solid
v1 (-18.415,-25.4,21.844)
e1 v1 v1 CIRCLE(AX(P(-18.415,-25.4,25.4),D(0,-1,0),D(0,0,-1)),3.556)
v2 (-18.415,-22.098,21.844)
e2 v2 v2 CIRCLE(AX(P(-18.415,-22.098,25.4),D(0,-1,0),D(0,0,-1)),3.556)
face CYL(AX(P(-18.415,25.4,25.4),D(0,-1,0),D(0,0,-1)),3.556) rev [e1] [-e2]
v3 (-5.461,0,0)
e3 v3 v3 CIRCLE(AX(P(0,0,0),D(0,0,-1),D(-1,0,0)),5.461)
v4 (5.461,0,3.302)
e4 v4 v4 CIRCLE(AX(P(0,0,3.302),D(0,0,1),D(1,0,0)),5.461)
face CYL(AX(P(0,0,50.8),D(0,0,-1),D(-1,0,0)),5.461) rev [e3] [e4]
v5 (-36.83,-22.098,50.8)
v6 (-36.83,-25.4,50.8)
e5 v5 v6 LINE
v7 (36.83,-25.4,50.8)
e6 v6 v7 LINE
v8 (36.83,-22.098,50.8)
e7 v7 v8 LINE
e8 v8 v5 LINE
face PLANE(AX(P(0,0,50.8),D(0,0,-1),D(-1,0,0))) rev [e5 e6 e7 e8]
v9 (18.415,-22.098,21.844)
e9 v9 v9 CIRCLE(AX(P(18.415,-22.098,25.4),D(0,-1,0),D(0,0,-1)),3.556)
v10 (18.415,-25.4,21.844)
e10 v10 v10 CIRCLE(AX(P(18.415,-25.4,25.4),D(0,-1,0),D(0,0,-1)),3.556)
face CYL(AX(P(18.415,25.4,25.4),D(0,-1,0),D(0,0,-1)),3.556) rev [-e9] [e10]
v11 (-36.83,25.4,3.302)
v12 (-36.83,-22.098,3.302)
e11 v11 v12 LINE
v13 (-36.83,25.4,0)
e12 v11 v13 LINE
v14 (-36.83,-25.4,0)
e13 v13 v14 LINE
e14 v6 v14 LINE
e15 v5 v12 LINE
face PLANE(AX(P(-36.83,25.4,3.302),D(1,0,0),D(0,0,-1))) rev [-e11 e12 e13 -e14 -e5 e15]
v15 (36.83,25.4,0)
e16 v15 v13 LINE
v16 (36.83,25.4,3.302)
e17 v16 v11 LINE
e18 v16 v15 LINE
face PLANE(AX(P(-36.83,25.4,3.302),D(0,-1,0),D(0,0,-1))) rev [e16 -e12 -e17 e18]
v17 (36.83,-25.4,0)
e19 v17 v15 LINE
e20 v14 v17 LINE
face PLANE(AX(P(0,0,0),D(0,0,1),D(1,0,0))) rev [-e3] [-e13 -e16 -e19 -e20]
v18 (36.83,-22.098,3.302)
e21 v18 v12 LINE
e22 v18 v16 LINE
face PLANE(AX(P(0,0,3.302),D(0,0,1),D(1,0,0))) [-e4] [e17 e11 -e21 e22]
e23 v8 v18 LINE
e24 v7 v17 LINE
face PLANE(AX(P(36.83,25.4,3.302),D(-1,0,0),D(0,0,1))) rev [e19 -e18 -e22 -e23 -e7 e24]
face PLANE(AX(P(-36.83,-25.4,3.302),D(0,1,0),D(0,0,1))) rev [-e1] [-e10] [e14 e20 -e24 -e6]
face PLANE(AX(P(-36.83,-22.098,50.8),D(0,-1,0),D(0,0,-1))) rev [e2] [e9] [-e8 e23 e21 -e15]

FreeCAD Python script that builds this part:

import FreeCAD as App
import Part
import Sketcher
Q = App.Units.Quantity

doc = App.newDocument("Part")
body = doc.addObject("PartDesign::Body", "Body")

sketch1 = body.newObject("Sketcher::SketchObject", "Sketch")
sketch1.AttachmentSupport = (doc.getObject("XY_Plane"), [""])
sketch1.MapMode = "FlatFace"
sketch1.addGeometry(Part.LineSegment(App.Vector(-37, 25, 0), App.Vector(-37, -25, 0)), False)
sketch1.addGeometry(Part.LineSegment(App.Vector(-37, -25, 0), App.Vector(37, -25, 0)), False)
sketch1.addGeometry(Part.LineSegment(App.Vector(37, -25, 0), App.Vector(37, 25, 0)), False)
sketch1.addGeometry(Part.LineSegment(App.Vector(37, 25, 0), App.Vector(-37, 25, 0)), False)
sketch1.addConstraint(Sketcher.Constraint("Coincident", 0, 2, 1, 1))
sketch1.addConstraint(Sketcher.Constraint("Coincident", 1, 2, 2, 1))
sketch1.addConstraint(Sketcher.Constraint("Coincident", 2, 2, 3, 1))
sketch1.addConstraint(Sketcher.Constraint("Coincident", 3, 2, 0, 1))
sketch1.addConstraint(Sketcher.Constraint("Vertical", 0))
sketch1.addConstraint(Sketcher.Constraint("Horizontal", 1))
sketch1.addConstraint(Sketcher.Constraint("Vertical", 2))
sketch1.addConstraint(Sketcher.Constraint("Horizontal", 3))
sketch1.addConstraint(Sketcher.Constraint("Symmetric", 0, 2, 2, 2, -1, 1))
sketch1.addConstraint(Sketcher.Constraint("DistanceY", 0, 2, 0, 1, Q("2 in")))
sketch1.addConstraint(Sketcher.Constraint("DistanceX", 1, 1, 1, 2, Q("2.9 in")))
pad1 = body.newObject("PartDesign::Pad", "Pad")
pad1.Profile = sketch1
pad1.Length = Q("0.13 in")

sketch2 = body.newObject("Sketcher::SketchObject", "Sketch001")
sketch2.AttachmentSupport = (doc.getObject("XY_Plane"), [""])
sketch2.MapMode = "FlatFace"
sketch2.AttachmentOffset = App.Placement(App.Vector(0, 0, 0.13 * 25.4), App.Rotation())
sketch2.addGeometry(Part.LineSegment(App.Vector(-36.8, -22.1, 0), App.Vector(-36.8, -25.4, 0)), False)
sketch2.addGeometry(Part.LineSegment(App.Vector(-36.8, -25.4, 0), App.Vector(36.8, -25.4, 0)), False)
sketch2.addGeometry(Part.LineSegment(App.Vector(36.8, -25.4, 0), App.Vector(36.8, -22.1, 0)), False)
sketch2.addGeometry(Part.LineSegment(App.Vector(36.8, -22.1, 0), App.Vector(-36.8, -22.1, 0)), False)
sketch2.addConstraint(Sketcher.Constraint("Coincident", 0, 2, 1, 1))
sketch2.addConstraint(Sketcher.Constraint("Coincident", 1, 2, 2, 1))
sketch2.addConstraint(Sketcher.Constraint("Coincident", 2, 2, 3, 1))
sketch2.addConstraint(Sketcher.Constraint("Coincident", 3, 2, 0, 1))
sketch2.addConstraint(Sketcher.Constraint("Vertical", 0))
sketch2.addConstraint(Sketcher.Constraint("Horizontal", 1))
sketch2.addConstraint(Sketcher.Constraint("Vertical", 2))
sketch2.addConstraint(Sketcher.Constraint("Horizontal", 3))
sketch2.addConstraint(Sketcher.Constraint("DistanceX", 1, 1, 1, 2, Q("2.9 in")))
sketch2.addConstraint(Sketcher.Constraint("DistanceY", 0, 2, -1, 1, Q("1 in")))
sketch2.addConstraint(Sketcher.Constraint("DistanceY", 0, 2, 0, 1, Q("0.13 in")))
sketch2.addConstraint(Sketcher.Constraint("DistanceX", 0, 2, -1, 1, Q("1.45 in")))
pad2 = body.newObject("PartDesign::Pad", "Pad001")
pad2.Profile = sketch2
pad2.Length = Q("1.87 in")

sketch3 = body.newObject("Sketcher::SketchObject", "Sketch002")
sketch3.AttachmentSupport = (doc.getObject("XY_Plane"), [""])
sketch3.MapMode = "FlatFace"
sketch3.addGeometry(Part.Circle(App.Vector(0, 0, 0), App.Vector(0, 0, 1), 5), False)
sketch3.addConstraint(Sketcher.Constraint("Coincident", 0, 3, -1, 1))
sketch3.addConstraint(Sketcher.Constraint("Diameter", 0, Q("0.43 in")))
pocket1 = body.newObject("PartDesign::Pocket", "Pocket")
pocket1.Profile = sketch3
pocket1.Type = "ThroughAll"
pocket1.Reversed = True

sketch4 = body.newObject("Sketcher::SketchObject", "Sketch003")
sketch4.AttachmentSupport = (doc.getObject("XZ_Plane"), [""])
sketch4.MapMode = "FlatFace"
sketch4.AttachmentOffset = App.Placement(App.Vector(0, 0, 1 * 25.4), App.Rotation())
sketch4.addGeometry(Part.Circle(App.Vector(-18.4, 25.4, 0), App.Vector(0, 0, 1), 3.6), False)
sketch4.addGeometry(Part.Circle(App.Vector(18.4, 25.4, 0), App.Vector(0, 0, 1), 3.6), False)
sketch4.addConstraint(Sketcher.Constraint("Equal", 0, 1))
sketch4.addConstraint(Sketcher.Constraint("Symmetric", 0, 3, 1, 3, -2))
sketch4.addConstraint(Sketcher.Constraint("Diameter", 0, Q("0.28 in")))
sketch4.addConstraint(Sketcher.Constraint("DistanceY", -1, 1, 0, 3, Q("1 in")))
sketch4.addConstraint(Sketcher.Constraint("DistanceX", 0, 3, 1, 3, Q("1.45 in")))
pocket2 = body.newObject("PartDesign::Pocket", "Pocket001")
pocket2.Profile = sketch4
pocket2.Type = "ThroughAll"

doc.recompute()
